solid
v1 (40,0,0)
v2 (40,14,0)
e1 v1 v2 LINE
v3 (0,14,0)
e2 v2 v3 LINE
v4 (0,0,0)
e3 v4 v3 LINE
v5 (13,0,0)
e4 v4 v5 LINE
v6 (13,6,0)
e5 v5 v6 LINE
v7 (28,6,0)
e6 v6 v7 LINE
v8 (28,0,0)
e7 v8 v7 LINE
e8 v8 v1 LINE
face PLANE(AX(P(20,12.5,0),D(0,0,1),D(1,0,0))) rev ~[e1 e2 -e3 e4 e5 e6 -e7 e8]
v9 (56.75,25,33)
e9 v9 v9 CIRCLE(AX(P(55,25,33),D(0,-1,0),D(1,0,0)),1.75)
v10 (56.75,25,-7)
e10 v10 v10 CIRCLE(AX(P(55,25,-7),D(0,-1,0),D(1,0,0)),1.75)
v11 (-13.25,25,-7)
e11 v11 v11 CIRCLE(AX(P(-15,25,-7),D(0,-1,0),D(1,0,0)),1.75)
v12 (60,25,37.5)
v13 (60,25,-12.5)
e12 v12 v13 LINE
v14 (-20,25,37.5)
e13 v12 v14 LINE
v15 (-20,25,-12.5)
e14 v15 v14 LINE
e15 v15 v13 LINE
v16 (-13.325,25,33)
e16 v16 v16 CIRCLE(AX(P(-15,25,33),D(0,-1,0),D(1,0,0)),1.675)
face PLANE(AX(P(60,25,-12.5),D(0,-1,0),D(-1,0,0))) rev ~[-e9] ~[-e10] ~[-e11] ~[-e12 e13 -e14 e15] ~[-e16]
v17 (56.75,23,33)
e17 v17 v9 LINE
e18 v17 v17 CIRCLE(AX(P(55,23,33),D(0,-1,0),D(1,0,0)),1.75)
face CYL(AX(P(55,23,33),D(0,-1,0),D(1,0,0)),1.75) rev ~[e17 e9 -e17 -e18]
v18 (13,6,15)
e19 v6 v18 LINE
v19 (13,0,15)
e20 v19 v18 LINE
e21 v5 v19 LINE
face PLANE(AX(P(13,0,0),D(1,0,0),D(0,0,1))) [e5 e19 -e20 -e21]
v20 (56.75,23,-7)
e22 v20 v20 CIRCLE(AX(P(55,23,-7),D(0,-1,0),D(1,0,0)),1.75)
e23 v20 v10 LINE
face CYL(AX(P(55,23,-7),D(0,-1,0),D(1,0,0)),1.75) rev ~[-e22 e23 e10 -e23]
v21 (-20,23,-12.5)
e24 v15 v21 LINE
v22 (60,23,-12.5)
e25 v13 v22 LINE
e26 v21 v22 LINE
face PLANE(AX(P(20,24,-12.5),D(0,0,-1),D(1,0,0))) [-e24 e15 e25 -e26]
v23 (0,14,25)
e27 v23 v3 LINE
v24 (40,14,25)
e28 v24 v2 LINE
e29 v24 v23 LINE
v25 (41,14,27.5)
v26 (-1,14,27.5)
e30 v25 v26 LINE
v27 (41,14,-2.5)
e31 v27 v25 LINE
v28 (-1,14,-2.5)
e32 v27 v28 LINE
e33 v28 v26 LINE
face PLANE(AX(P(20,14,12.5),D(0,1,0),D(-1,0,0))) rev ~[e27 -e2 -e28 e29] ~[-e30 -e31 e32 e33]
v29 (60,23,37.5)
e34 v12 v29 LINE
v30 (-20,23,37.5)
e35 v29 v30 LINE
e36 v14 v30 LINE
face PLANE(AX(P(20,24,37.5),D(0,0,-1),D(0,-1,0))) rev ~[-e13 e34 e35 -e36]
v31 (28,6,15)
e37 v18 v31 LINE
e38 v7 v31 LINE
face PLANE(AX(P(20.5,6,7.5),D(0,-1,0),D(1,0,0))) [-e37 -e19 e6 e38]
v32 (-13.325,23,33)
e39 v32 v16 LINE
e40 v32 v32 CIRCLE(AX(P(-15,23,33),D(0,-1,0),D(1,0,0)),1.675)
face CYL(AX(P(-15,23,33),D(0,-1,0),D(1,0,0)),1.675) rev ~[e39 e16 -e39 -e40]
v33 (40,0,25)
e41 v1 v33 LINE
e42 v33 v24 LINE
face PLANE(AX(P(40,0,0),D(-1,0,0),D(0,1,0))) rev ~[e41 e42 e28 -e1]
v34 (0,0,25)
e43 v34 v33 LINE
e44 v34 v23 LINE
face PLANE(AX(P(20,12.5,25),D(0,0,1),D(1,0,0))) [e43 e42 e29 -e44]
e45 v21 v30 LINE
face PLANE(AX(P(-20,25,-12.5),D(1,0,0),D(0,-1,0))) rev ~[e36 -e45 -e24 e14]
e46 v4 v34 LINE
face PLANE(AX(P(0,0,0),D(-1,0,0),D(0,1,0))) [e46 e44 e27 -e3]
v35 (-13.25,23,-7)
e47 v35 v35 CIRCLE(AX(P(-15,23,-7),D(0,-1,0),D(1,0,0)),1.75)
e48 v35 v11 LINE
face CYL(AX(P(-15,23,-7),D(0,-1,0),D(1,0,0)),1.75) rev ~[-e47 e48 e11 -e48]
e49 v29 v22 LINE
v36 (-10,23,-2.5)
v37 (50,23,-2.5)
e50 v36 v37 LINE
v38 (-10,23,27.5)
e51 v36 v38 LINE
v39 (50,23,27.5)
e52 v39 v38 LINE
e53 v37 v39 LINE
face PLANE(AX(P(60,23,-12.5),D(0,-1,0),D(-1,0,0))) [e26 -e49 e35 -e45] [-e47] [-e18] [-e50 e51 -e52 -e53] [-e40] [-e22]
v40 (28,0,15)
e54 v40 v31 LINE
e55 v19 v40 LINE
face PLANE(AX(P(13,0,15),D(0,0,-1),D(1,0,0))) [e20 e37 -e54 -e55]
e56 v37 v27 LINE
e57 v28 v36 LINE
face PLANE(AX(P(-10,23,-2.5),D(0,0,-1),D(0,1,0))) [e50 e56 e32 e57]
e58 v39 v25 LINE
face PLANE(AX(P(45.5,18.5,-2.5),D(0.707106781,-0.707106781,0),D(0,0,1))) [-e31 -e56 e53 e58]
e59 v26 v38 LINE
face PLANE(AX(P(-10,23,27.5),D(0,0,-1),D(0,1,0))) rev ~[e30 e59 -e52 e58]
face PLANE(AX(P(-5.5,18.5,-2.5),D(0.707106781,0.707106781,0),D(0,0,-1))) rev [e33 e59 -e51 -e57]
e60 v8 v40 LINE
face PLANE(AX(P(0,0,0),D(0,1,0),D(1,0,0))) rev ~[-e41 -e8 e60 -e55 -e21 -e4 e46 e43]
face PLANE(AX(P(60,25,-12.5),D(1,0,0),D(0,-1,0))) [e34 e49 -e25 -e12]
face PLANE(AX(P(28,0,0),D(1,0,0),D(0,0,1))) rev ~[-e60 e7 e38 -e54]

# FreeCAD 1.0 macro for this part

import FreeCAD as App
import Part
import Sketcher
from FreeCAD import Vector
Q = App.Units.Quantity


def edges_at(feature, points):
    """Names of the edges that pass closest to the given points."""
    edges = feature.Shape.Edges
    near = lambda p: min(range(len(edges)), key=lambda i: edges[i].distToShape(Part.Vertex(*p))[0])
    return sorted({f"Edge{near(p) + 1}" for p in points})


def add_polygon(sketch, points):
    """Adds a closed chain of lines whose ends are joined by coincident constraints."""
    first, n = sketch.GeometryCount, len(points)
    for a, b in zip(points, points[1:] + points[:1]):
        sketch.addGeometry(Part.LineSegment(App.Vector(*a, 0), App.Vector(*b, 0)), False)
    for i in range(n):
        sketch.addConstraint(Sketcher.Constraint("Coincident", first + i, 2, first + (i + 1) % n, 1))

doc = App.newDocument("Part")
params = doc.addObject("Spreadsheet::Sheet", "Params")
for row, (alias, value) in enumerate([
    ("sketch1_width", "40 mm"),
    ("sketch1_height", "25 mm"),
    ("pad1_length", "25 mm"),
    ("sketch2_width", "15 mm"),
    ("pocket1_length", "6 mm"),
    ("sketch3_width", "60 mm"),
    ("sketch3_height", "30 mm"),
    ("pad2_length", "11 mm"),
    ("chamfer_size", "9 mm"),
    ("sketch4_width", "2 mm"),
    ("sketch4_height", "30 mm"),
    ("pad3_length", "10 mm"),
    ("sketch5_width", "2 mm"),
    ("sketch5_height", "30 mm"),
    ("pad4_length", "10 mm"),
    ("sketch6_width", "80 mm"),
    ("sketch6_height", "2 mm"),
    ("pad5_length", "10 mm"),
    ("sketch7_width", "80 mm"),
    ("sketch7_height", "2 mm"),
    ("pad6_length", "50 mm"),
    ("sketch8_diameter", "3.5 mm"),
    ("sketch8_diameter2", "3.35 mm"),
    ("pocket2_length", "5 mm"),
], start=1):
    params.set(f"A{row}", alias)
    params.set(f"B{row}", "=" + value)
    params.setAlias(f"B{row}", alias)

body = doc.addObject("PartDesign::Body", "Body")

sketch1 = body.newObject("Sketcher::SketchObject", "Sketch")
sketch1.AttachmentSupport = (doc.getObject("XY_Plane"), [""])
sketch1.MapMode = "FlatFace"
add_polygon(sketch1, [(0, 25), (0, 0), (40, 0), (40, 25)])
sketch1.addConstraint([
    Sketcher.Constraint("Vertical", 0),
    Sketcher.Constraint("Horizontal", 1),
    Sketcher.Constraint("Vertical", 2),
    Sketcher.Constraint("Horizontal", 3),
    Sketcher.Constraint("Coincident", 0, 2, -1, 1),
    Sketcher.Constraint("DistanceX", 1, 1, 1, 2, Q("40 mm")),
    Sketcher.Constraint("DistanceY", 0, 2, 0, 1, Q("25 mm")),
])
sketch1.setExpression("Constraints[9]", "Params.sketch1_width")
sketch1.setExpression("Constraints[10]", "Params.sketch1_height")
pad1 = body.newObject("PartDesign::Pad", "Pad")
pad1.Profile = sketch1
pad1.setExpression("Length", "Params.pad1_length")

sketch2 = body.newObject("Sketcher::SketchObject", "Sketch001")
sketch2.AttachmentSupport = (doc.getObject("XZ_Plane"), [""])
sketch2.MapMode = "FlatFace"
add_polygon(sketch2, [(13, 15), (13, 0), (28, 0), (28, 15)])
sketch2.addConstraint([
    Sketcher.Constraint("Vertical", 0),
    Sketcher.Constraint("Horizontal", 1),
    Sketcher.Constraint("Vertical", 2),
    Sketcher.Constraint("Horizontal", 3),
    Sketcher.Constraint("PointOnObject", 0, 2, -1),
    Sketcher.Constraint("Equal", 3, 0),
    Sketcher.Constraint("DistanceX", 1, 1, 1, 2, Q("15 mm")),
    Sketcher.Constraint("DistanceX", -1, 1, 0, 2, Q("13 mm")),
])
sketch2.setExpression("Constraints[10]", "Params.sketch2_width")
pocket1 = body.newObject("PartDesign::Pocket", "Pocket")
pocket1.Profile = sketch2
pocket1.setExpression("Length", "Params.pocket1_length")

sketch3 = body.newObject("Sketcher::SketchObject", "Sketch002")
sketch3.AttachmentSupport = (doc.getObject("XZ_Plane"), [""])
sketch3.MapMode = "FlatFace"
sketch3.AttachmentOffset = App.Placement(Vector(0, 0, -25), App.Rotation())
add_polygon(sketch3, [(50, 28), (50, -2), (-10, -2), (-10, 28)])
sketch3.addConstraint([
    Sketcher.Constraint("Vertical", 0),
    Sketcher.Constraint("Horizontal", 1),
    Sketcher.Constraint("Vertical", 2),
    Sketcher.Constraint("Horizontal", 3),
    Sketcher.Constraint("DistanceX", 1, 2, 1, 1, Q("60 mm")),
    Sketcher.Constraint("DistanceY", 0, 2, 0, 1, Q("30 mm")),
    Sketcher.Constraint("DistanceX", -1, 1, 0, 2, Q("50 mm")),
    Sketcher.Constraint("DistanceY", 0, 2, -1, 1, Q("2.5 mm")),
])
sketch3.setExpression("Constraints[8]", "Params.sketch3_width")
sketch3.setExpression("Constraints[9]", "Params.sketch3_height")
pad2 = body.newObject("PartDesign::Pad", "Pad001")
pad2.Profile = sketch3
pad2.setExpression("Length", "Params.pad2_length")
doc.recompute()

chamfer = body.newObject("PartDesign::Chamfer", "Chamfer")
chamfer.Base = (pad2, edges_at(pad2, [(-10, 14, 12.5), (50, 14, 12.5)]))
chamfer.setExpression("Size", "Params.chamfer_size")

sketch4 = body.newObject("Sketcher::SketchObject", "Sketch003")
sketch4.AttachmentSupport = (doc.getObject("YZ_Plane"), [""])
sketch4.MapMode = "FlatFace"
sketch4.AttachmentOffset = App.Placement(Vector(0, 0, 50), App.Rotation())
add_polygon(sketch4, [(25, -2.5), (25, 27.5), (23, 27.5), (23, -2.5)])
sketch4.addConstraint([
    Sketcher.Constraint("Vertical", 0),
    Sketcher.Constraint("Horizontal", 1),
    Sketcher.Constraint("Vertical", 2),
    Sketcher.Constraint("Horizontal", 3),
    Sketcher.Constraint("DistanceX", 1, 2, 1, 1, Q("2 mm")),
    Sketcher.Constraint("DistanceY", 0, 1, 0, 2, Q("30 mm")),
    Sketcher.Constraint("DistanceX", -1, 1, 0, 2, Q("25 mm")),
    Sketcher.Constraint("DistanceY", -1, 1, 0, 2, Q("27.5 mm")),
])
sketch4.setExpression("Constraints[8]", "Params.sketch4_width")
sketch4.setExpression("Constraints[9]", "Params.sketch4_height")
pad3 = body.newObject("PartDesign::Pad", "Pad002")
pad3.Profile = sketch4
pad3.setExpression("Length", "Params.pad3_length")

sketch5 = body.newObject("Sketcher::SketchObject", "Sketch004")
sketch5.AttachmentSupport = (doc.getObject("YZ_Plane"), [""])
sketch5.MapMode = "FlatFace"
sketch5.AttachmentOffset = App.Placement(Vector(0, 0, -10), App.Rotation())
add_polygon(sketch5, [(23, -2.5), (23, 27.5), (25, 27.5), (25, -2.5)])
sketch5.addConstraint([
    Sketcher.Constraint("Vertical", 0),
    Sketcher.Constraint("Horizontal", 1),
    Sketcher.Constraint("Vertical", 2),
    Sketcher.Constraint("Horizontal", 3),
    Sketcher.Constraint("DistanceX", 1, 1, 1, 2, Q("2 mm")),
    Sketcher.Constraint("DistanceY", 0, 1, 0, 2, Q("30 mm")),
    Sketcher.Constraint("DistanceX", -1, 1, 0, 2, Q("23 mm")),
    Sketcher.Constraint("DistanceY", -1, 1, 0, 2, Q("27.5 mm")),
])
sketch5.setExpression("Constraints[8]", "Params.sketch5_width")
sketch5.setExpression("Constraints[9]", "Params.sketch5_height")
pad4 = body.newObject("PartDesign::Pad", "Pad003")
pad4.Profile = sketch5
pad4.setExpression("Length", "Params.pad4_length")
pad4.Reversed = True

sketch6 = body.newObject("Sketcher::SketchObject", "Sketch005")
sketch6.AttachmentSupport = (doc.getObject("XY_Plane"), [""])
sketch6.MapMode = "FlatFace"
sketch6.AttachmentOffset = App.Placement(Vector(0, 0, -2.5), App.Rotation())
add_polygon(sketch6, [(-20, 23), (-20, 25), (60, 25), (60, 23)])
sketch6.addConstraint([
    Sketcher.Constraint("Vertical", 0),
    Sketcher.Constraint("Horizontal", 1),
    Sketcher.Constraint("Vertical", 2),
    Sketcher.Constraint("Horizontal", 3),
    Sketcher.Constraint("DistanceX", 1, 1, 1, 2, Q("80 mm")),
    Sketcher.Constraint("DistanceY", 0, 1, 0, 2, Q("2 mm")),
    Sketcher.Constraint("DistanceX", 0, 2, -1, 1, Q("20 mm")),
    Sketcher.Constraint("DistanceY", -1, 1, 0, 2, Q("25 mm")),
])
sketch6.setExpression("Constraints[8]", "Params.sketch6_width")
sketch6.setExpression("Constraints[9]", "Params.sketch6_height")
pad5 = body.newObject("PartDesign::Pad", "Pad004")
pad5.Profile = sketch6
pad5.setExpression("Length", "Params.pad5_length")
pad5.Reversed = True

sketch7 = body.newObject("Sketcher::SketchObject", "Sketch006")
sketch7.AttachmentSupport = (doc.getObject("XY_Plane"), [""])
sketch7.MapMode = "FlatFace"
sketch7.AttachmentOffset = App.Placement(Vector(0, 0, -12.5), App.Rotation())
add_polygon(sketch7, [(-20, 25), (60, 25), (60, 23), (-20, 23)])
sketch7.addConstraint([
    Sketcher.Constraint("Horizontal", 0),
    Sketcher.Constraint("Vertical", 1),
    Sketcher.Constraint("Horizontal", 2),
    Sketcher.Constraint("Vertical", 3),
    Sketcher.Constraint("DistanceX", 0, 1, 0, 2, Q("80 mm")),
    Sketcher.Constraint("DistanceY", 1, 2, 1, 1, Q("2 mm")),
    Sketcher.Constraint("DistanceX", -1, 1, 0, 2, Q("60 mm")),
    Sketcher.Constraint("DistanceY", -1, 1, 0, 2, Q("25 mm")),
])
sketch7.setExpression("Constraints[8]", "Params.sketch7_width")
sketch7.setExpression("Constraints[9]", "Params.sketch7_height")
pad6 = body.newObject("PartDesign::Pad", "Pad005")
pad6.Profile = sketch7
pad6.setExpression("Length", "Params.pad6_length")

sketch8 = body.newObject("Sketcher::SketchObject", "Sketch007")
sketch8.AttachmentSupport = (doc.getObject("XZ_Plane"), [""])
sketch8.MapMode = "FlatFace"
sketch8.AttachmentOffset = App.Placement(Vector(0, 0, -23), App.Rotation())
sketch8.addGeometry([
    Part.Circle(Vector(-15, 33, 0), Vector(0, 0, 1), 1.7),
    Part.Circle(Vector(-15, -7, 0), Vector(0, 0, 1), 1.8),
    Part.Circle(Vector(55, 33, 0), Vector(0, 0, 1), 1.8),
    Part.Circle(Vector(55, -7, 0), Vector(0, 0, 1), 1.8),
], False)
sketch8.addConstraint([
    Sketcher.Constraint("Equal", 1, 2),
    Sketcher.Constraint("Equal", 2, 3),
    Sketcher.Constraint("Horizontal", 0, 3, 2, 3),
    Sketcher.Constraint("Horizontal", 1, 3, 3, 3),
    Sketcher.Constraint("Vertical", 0, 3, 1, 3),
    Sketcher.Constraint("Vertical", 2, 3, 3, 3),
    Sketcher.Constraint("Diameter", 1, Q("3.5 mm")),
    Sketcher.Constraint("Diameter", 0, Q("3.35 mm")),
    Sketcher.Constraint("DistanceX", 0, 3, -1, 1, Q("15 mm")),
    Sketcher.Constraint("DistanceY", -1, 1, 0, 3, Q("33 mm")),
    Sketcher.Constraint("DistanceY", 1, 3, -1, 1, Q("7 mm")),
    Sketcher.Constraint("DistanceX", -1, 1, 2, 3, Q("55 mm")),
])
sketch8.setExpression("Constraints[6]", "Params.sketch8_diameter")
sketch8.setExpression("Constraints[7]", "Params.sketch8_diameter2")
pocket2 = body.newObject("PartDesign::Pocket", "Pocket001")
pocket2.Profile = sketch8
pocket2.setExpression("Length", "Params.pocket2_length")

doc.recompute()
